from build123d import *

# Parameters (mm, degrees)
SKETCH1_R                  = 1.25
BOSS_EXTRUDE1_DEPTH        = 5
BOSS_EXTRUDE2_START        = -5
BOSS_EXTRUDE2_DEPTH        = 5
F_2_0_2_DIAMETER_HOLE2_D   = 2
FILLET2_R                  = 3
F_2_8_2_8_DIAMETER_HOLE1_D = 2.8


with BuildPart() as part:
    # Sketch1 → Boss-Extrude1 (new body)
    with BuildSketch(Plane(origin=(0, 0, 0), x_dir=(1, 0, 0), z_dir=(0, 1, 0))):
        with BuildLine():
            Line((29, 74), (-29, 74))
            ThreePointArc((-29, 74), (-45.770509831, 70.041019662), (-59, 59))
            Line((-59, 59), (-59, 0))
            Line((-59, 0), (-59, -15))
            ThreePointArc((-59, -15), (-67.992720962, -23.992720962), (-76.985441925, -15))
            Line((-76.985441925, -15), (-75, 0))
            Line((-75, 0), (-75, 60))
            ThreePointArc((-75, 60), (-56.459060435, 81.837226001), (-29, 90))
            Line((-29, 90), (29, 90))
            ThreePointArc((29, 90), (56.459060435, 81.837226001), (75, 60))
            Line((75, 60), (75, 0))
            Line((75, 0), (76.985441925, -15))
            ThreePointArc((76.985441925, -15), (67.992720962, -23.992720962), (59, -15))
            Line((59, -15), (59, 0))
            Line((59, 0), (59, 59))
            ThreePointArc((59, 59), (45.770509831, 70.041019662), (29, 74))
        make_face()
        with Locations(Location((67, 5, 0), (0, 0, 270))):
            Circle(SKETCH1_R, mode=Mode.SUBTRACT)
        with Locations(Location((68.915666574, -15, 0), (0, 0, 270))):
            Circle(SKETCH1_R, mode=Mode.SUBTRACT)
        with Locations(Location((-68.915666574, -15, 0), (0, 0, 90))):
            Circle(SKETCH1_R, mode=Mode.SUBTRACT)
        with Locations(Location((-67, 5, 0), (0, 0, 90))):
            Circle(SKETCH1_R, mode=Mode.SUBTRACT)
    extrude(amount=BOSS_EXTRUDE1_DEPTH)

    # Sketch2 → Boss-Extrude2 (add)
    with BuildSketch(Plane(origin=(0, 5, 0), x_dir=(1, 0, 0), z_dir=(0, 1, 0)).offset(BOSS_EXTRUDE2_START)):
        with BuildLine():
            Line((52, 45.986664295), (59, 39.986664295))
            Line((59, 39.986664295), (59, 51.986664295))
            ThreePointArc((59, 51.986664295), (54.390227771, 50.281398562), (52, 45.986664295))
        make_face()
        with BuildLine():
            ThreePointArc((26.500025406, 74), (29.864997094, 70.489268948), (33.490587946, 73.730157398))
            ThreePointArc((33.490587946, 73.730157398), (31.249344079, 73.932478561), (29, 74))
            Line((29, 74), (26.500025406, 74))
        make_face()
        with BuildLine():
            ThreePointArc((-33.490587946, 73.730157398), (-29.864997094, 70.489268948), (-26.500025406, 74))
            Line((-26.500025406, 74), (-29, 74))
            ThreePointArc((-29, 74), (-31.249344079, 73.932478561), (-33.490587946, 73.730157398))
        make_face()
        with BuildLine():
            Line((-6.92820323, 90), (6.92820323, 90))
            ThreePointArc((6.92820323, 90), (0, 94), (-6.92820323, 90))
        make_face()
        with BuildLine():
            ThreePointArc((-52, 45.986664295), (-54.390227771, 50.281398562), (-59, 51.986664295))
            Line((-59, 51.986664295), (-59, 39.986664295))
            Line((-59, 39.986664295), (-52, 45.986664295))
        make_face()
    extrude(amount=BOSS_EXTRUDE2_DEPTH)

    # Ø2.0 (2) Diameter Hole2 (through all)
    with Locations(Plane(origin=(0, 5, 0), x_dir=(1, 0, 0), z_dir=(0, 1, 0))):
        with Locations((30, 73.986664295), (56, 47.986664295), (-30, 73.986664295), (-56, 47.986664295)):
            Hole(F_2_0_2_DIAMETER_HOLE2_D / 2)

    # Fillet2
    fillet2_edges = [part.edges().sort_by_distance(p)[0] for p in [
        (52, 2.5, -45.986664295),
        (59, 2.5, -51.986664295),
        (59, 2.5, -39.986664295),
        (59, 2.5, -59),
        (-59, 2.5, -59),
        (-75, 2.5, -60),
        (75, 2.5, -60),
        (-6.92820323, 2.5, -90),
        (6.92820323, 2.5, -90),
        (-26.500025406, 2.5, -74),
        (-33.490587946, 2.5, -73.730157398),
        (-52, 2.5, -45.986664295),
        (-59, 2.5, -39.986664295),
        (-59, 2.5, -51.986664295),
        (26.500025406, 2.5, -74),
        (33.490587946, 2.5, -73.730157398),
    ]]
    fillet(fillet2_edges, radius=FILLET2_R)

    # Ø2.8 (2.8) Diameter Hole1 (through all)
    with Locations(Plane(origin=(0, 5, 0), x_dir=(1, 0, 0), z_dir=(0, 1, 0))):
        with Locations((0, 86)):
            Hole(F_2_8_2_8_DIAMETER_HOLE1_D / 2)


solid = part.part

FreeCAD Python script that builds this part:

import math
import FreeCAD as App
import Part
import Sketcher

V = App.Vector
Q = App.Units.Quantity


def edges_at(feature, points):
    """Names of the edges that pass closest to the given points."""
    edges = feature.Shape.Edges
    near = lambda p: min(range(len(edges)), key=lambda i: edges[i].distToShape(Part.Vertex(*p))[0])
    return sorted({f"Edge{near(p) + 1}" for p in points})

doc = App.newDocument("Part")
body = doc.addObject("PartDesign::Body", "Body")

sketch1 = doc.addObject("Sketcher::SketchObject", "Sketch")
body.addObject(sketch1)
sketch1.AttachmentSupport = (doc.XZ_Plane, [""])
sketch1.MapMode = "FlatFace"
sketch1.addGeometry([
    Part.LineSegment(V(-29, -74, 0), V(29, -74, 0)),
    Part.ArcOfCircle(Part.Circle(V(29, -36.5, 0), V(0, 0, 1), 37.5), math.radians(-90), math.radians(-37)),
    Part.LineSegment(V(59, -59, 0), V(59, 15, 0)),
    Part.ArcOfCircle(Part.Circle(V(68, 15, 0), V(0, 0, 1), 9), math.radians(0), math.radians(180)),
    Part.LineSegment(V(77, 15, 0), V(75, 0, 0)),
    Part.LineSegment(V(75, 0, 0), V(75, -60, 0)),
    Part.ArcOfCircle(Part.Circle(V(29, -39.7, 0), V(0, 0, 1), 50.3), math.radians(-90), math.radians(-24)),
    Part.LineSegment(V(29, -90, 0), V(-29, -90, 0)),
    Part.ArcOfCircle(Part.Circle(V(-29, -39.7, 0), V(0, 0, 1), 50.3), math.radians(-156), math.radians(-90)),
    Part.LineSegment(V(-75, -60, 0), V(-75, 0, 0)),
    Part.LineSegment(V(-75, 0, 0), V(-77, 15, 0)),
    Part.ArcOfCircle(Part.Circle(V(-68, 15, 0), V(0, 0, 1), 9), math.radians(0), math.radians(180)),
    Part.LineSegment(V(-59, 15, 0), V(-59, -59, 0)),
    Part.ArcOfCircle(Part.Circle(V(-29, -36.5, 0), V(0, 0, 1), 37.5), math.radians(-143), math.radians(-90)),
    Part.Circle(V(68.9, 15, 0), V(0, 0, 1), 1.2),
    Part.Circle(V(-68.9, 15, 0), V(0, 0, 1), 1.2),
    Part.Circle(V(67, -5, 0), V(0, 0, 1), 1.2),
    Part.Circle(V(-67, -5, 0), V(0, 0, 1), 1.2),
], False)
sketch1.addConstraint([
    Sketcher.Constraint("Tangent", 0, 2, 1, 1),
    Sketcher.Constraint("Coincident", 1, 2, 2, 1),
    Sketcher.Constraint("Tangent", 2, 2, 3, 2),
    Sketcher.Constraint("Coincident", 3, 1, 4, 1),
    Sketcher.Constraint("Coincident", 4, 2, 5, 1),
    Sketcher.Constraint("Coincident", 5, 2, 6, 2),
    Sketcher.Constraint("Tangent", 6, 1, 7, 1),
    Sketcher.Constraint("Tangent", 7, 2, 8, 2),
    Sketcher.Constraint("Coincident", 8, 1, 9, 1),
    Sketcher.Constraint("Coincident", 9, 2, 10, 1),
    Sketcher.Constraint("Coincident", 10, 2, 11, 2),
    Sketcher.Constraint("Tangent", 11, 1, 12, 1),
    Sketcher.Constraint("Coincident", 12, 2, 13, 1),
    Sketcher.Constraint("Tangent", 13, 2, 0, 1),
    Sketcher.Constraint("Horizontal", 0),
    Sketcher.Constraint("Vertical", 2),
    Sketcher.Constraint("Vertical", 5),
    Sketcher.Constraint("Horizontal", 7),
    Sketcher.Constraint("Vertical", 9),
    Sketcher.Constraint("Vertical", 12),
    Sketcher.Constraint("Equal", 6, 8),
    Sketcher.Constraint("Equal", 3, 11),
    Sketcher.Constraint("Equal", 1, 13),
    Sketcher.Constraint("Equal", 14, 15),
    Sketcher.Constraint("Equal", 15, 16),
    Sketcher.Constraint("Equal", 16, 17),
    Sketcher.Constraint("Symmetric", 4, 2, 9, 2, -1, 1),
    Sketcher.Constraint("Symmetric", 3, 3, 11, 3, -2),
    Sketcher.Constraint("Symmetric", 14, 3, 15, 3, -2),
    Sketcher.Constraint("Symmetric", 16, 3, 17, 3, -2),
    Sketcher.Constraint("PointOnObject", 4, 2, -1),
    Sketcher.Constraint("Horizontal", 11, 3, 14, 3),
    Sketcher.Constraint("Horizontal", 2, 2, 3, 1),
    Sketcher.Constraint("Horizontal", 5, 2, 8, 1),
    Sketcher.Constraint("Horizontal", 3, 1, 10, 2),
    Sketcher.Constraint("Horizontal", 1, 2, 12, 2),
    Sketcher.Constraint("Vertical", 1, 3, 6, 3),
    Sketcher.Constraint("Diameter", 14, Q("2.5 mm")),
    Sketcher.Constraint("Radius", 1, Q("37.5 mm")),
    Sketcher.Constraint("DistanceX", 0, 1, 0, 2, Q("58 mm")),
    Sketcher.Constraint("DistanceY", 2, 1, 2, 2, Q("74 mm")),
    Sketcher.Constraint("DistanceY", 5, 2, 5, 1, Q("60 mm")),
    Sketcher.Constraint("DistanceY", -1, 1, 3, 3, Q("15 mm")),
    Sketcher.Constraint("DistanceX", -1, 1, 16, 3, Q("67 mm")),
    Sketcher.Constraint("DistanceY", 16, 3, -1, 1, Q("5 mm")),
    Sketcher.Constraint("DistanceY", 0, 2, -1, 1, Q("74 mm")),
    Sketcher.Constraint("DistanceX", -1, 1, 4, 2, Q("75 mm")),
    Sketcher.Constraint("DistanceY", 6, 1, -1, 1, Q("90 mm")),
    Sketcher.Constraint("Angle", 4, Q("-97.54 deg")),
    Sketcher.Constraint("DistanceX", -1, 1, 14, 3, Q("68.915667 mm")),
])
pad1 = doc.addObject("PartDesign::Pad", "Pad")
body.addObject(pad1)
pad1.Profile = sketch1
pad1.Length = 5
pad1.Reversed = True

sketch2 = doc.addObject("Sketcher::SketchObject", "Sketch001")
body.addObject(sketch2)
sketch2.AttachmentSupport = (doc.XZ_Plane, [""])
sketch2.MapMode = "FlatFace"
sketch2.addGeometry([
    Part.LineSegment(V(52, -46, 0), V(59, -40, 0)),
    Part.LineSegment(V(59, -40, 0), V(59, -52, 0)),
    Part.ArcOfCircle(Part.Circle(V(59, -44.9, 0), V(0, 0, 1), 7.1), math.radians(-171), math.radians(-90)),
    Part.ArcOfCircle(Part.Circle(V(30, -74, 0), V(0, 0, 1), 3.5), math.radians(4), math.radians(180)),
    Part.ArcOfCircle(Part.Circle(V(29, -36.5, 0), V(0, 0, 1), 37.5), math.radians(-90), math.radians(-83.12)),
    Part.LineSegment(V(29, -74, 0), V(26.5, -74, 0)),
    Part.ArcOfCircle(Part.Circle(V(-30, -74, 0), V(0, 0, 1), 3.5), math.radians(0), math.radians(176)),
    Part.LineSegment(V(-26.5, -74, 0), V(-29, -74, 0)),
    Part.ArcOfCircle(Part.Circle(V(-29, -36.5, 0), V(0, 0, 1), 37.5), math.radians(-96.88), math.radians(-90)),
    Part.LineSegment(V(-6.9, -90, 0), V(6.9, -90, 0)),
    Part.ArcOfCircle(Part.Circle(V(0, -86, 0), V(0, 0, 1), 8), math.radians(-150), math.radians(-30)),
    Part.ArcOfCircle(Part.Circle(V(-59, -44.9, 0), V(0, 0, 1), 7.1), math.radians(-90), math.radians(-9)),
    Part.LineSegment(V(-59, -52, 0), V(-59, -40, 0)),
    Part.LineSegment(V(-59, -40, 0), V(-52, -46, 0)),
], False)
sketch2.addConstraint([
    Sketcher.Constraint("Coincident", 0, 2, 1, 1),
    Sketcher.Constraint("Coincident", 1, 2, 2, 2),
    Sketcher.Constraint("Coincident", 2, 1, 0, 1),
    Sketcher.Constraint("Coincident", 3, 1, 4, 2),
    Sketcher.Constraint("Tangent", 4, 1, 5, 1),
    Sketcher.Constraint("Coincident", 5, 2, 3, 2),
    Sketcher.Constraint("Coincident", 6, 1, 7, 1),
    Sketcher.Constraint("Tangent", 7, 2, 8, 2),
    Sketcher.Constraint("Coincident", 8, 1, 6, 2),
    Sketcher.Constraint("Coincident", 9, 1, 10, 1),
    Sketcher.Constraint("Coincident", 10, 2, 9, 2),
    Sketcher.Constraint("Coincident", 11, 1, 12, 1),
    Sketcher.Constraint("Coincident", 12, 2, 13, 1),
    Sketcher.Constraint("Coincident", 13, 2, 11, 2),
    Sketcher.Constraint("Vertical", 1),
    Sketcher.Constraint("Horizontal", 5),
    Sketcher.Constraint("Horizontal", 7),
    Sketcher.Constraint("Horizontal", 9),
    Sketcher.Constraint("Vertical", 12),
    Sketcher.Constraint("Equal", 3, 6),
    Sketcher.Constraint("Equal", 4, 8),
    Sketcher.Constraint("Equal", 2, 11),
    Sketcher.Constraint("Symmetric", 3, 3, 6, 3, -2),
    Sketcher.Constraint("Symmetric", 4, 3, 8, 3, -2),
    Sketcher.Constraint("Symmetric", 2, 3, 11, 3, -2),
    Sketcher.Constraint("Symmetric", 0, 2, 12, 2, -2),
    Sketcher.Constraint("PointOnObject", 10, 3, -2),
    Sketcher.Constraint("Horizontal", 2, 1, 13, 2),
    Sketcher.Constraint("Vertical", 2, 3, 0, 2),
    Sketcher.Constraint("Radius", 10, Q("8 mm")),
    Sketcher.Constraint("Radius", 3, Q("3.5 mm")),
    Sketcher.Constraint("Radius", 4, Q("37.5 mm")),
    Sketcher.Constraint("DistanceY", 1, 2, 1, 1, Q("12 mm")),
    Sketcher.Constraint("DistanceX", -1, 1, 2, 3, Q("59 mm")),
    Sketcher.Constraint("DistanceX", -1, 1, 3, 3, Q("30 mm")),
    Sketcher.Constraint("DistanceX", -1, 1, 4, 3, Q("29 mm")),
    Sketcher.Constraint("DistanceY", 10, 3, -1, 1, Q("86 mm")),
    Sketcher.Constraint("DistanceX", -1, 1, 2, 1, Q("52 mm")),
    Sketcher.Constraint("DistanceY", 4, 1, -1, 1, Q("74 mm")),
    Sketcher.Constraint("DistanceY", 9, 1, -1, 1, Q("90 mm")),
    Sketcher.Constraint("DistanceY", 3, 3, 0, 2, Q("34 mm")),
    Sketcher.Constraint("DistanceY", 2, 1, 0, 2, Q("6 mm")),
    Sketcher.Constraint("DistanceY", 2, 3, -1, 1, Q("44.903331 mm")),
])
pad2 = doc.addObject("PartDesign::Pad", "Pad001")
body.addObject(pad2)
pad2.Profile = sketch2
pad2.Length = 5
pad2.Reversed = True

sketch3 = doc.addObject("Sketcher::SketchObject", "Sketch002")
body.addObject(sketch3)
sketch3.AttachmentSupport = (doc.XZ_Plane, [""])
sketch3.MapMode = "FlatFace"
sketch3.AttachmentOffset = App.Placement(V(0, 0, -5), App.Rotation())
sketch3.addGeometry([
    Part.Circle(V(30, -74, 0), V(0, 0, 1), 1),
    Part.Circle(V(56, -48, 0), V(0, 0, 1), 1),
    Part.Circle(V(-30, -74, 0), V(0, 0, 1), 1),
    Part.Circle(V(-56, -48, 0), V(0, 0, 1), 1),
], False)
sketch3.addConstraint([
    Sketcher.Constraint("Equal", 0, 1),
    Sketcher.Constraint("Equal", 1, 2),
    Sketcher.Constraint("Equal", 2, 3),
    Sketcher.Constraint("Symmetric", 0, 3, 2, 3, -2),
    Sketcher.Constraint("Symmetric", 1, 3, 3, 3, -2),
    Sketcher.Constraint("Diameter", 0, Q("2 mm")),
    Sketcher.Constraint("DistanceX", -1, 1, 0, 3, Q("30 mm")),
    Sketcher.Constraint("DistanceX", -1, 1, 1, 3, Q("56 mm")),
    Sketcher.Constraint("DistanceY", 0, 3, 1, 3, Q("26 mm")),
    Sketcher.Constraint("DistanceY", 0, 3, -1, 1, Q("73.986664 mm")),
])
doc.recompute()
hole = doc.addObject("PartDesign::Hole", "Hole")
body.addObject(hole)
hole.Profile = sketch3
hole.ThreadType = "None"
hole.Diameter = 2
hole.DepthType = "ThroughAll"
hole.Reversed = True
doc.recompute()

fillet = doc.addObject("PartDesign::Fillet", "Fillet")
body.addObject(fillet)
fillet.Base = (hole, edges_at(hole, [
    (52, 2.5, -45.987),
    (59, 2.5, -51.987),
    (59, 2.5, -39.987),
    (59, 2.5, -59),
    (-59, 2.5, -59),
    (-75, 2.5, -60),
    (75, 2.5, -60),
    (-6.928, 2.5, -90),
    (6.928, 2.5, -90),
    (-26.5, 2.5, -74),
    (-33.491, 2.5, -73.73),
    (-52, 2.5, -45.987),
    (-59, 2.5, -39.987),
    (-59, 2.5, -51.987),
    (26.5, 2.5, -74),
    (33.491, 2.5, -73.73),
]))
fillet.Radius = 3

sketch4 = doc.addObject("Sketcher::SketchObject", "Sketch003")
body.addObject(sketch4)
sketch4.AttachmentSupport = (doc.XZ_Plane, [""])
sketch4.MapMode = "FlatFace"
sketch4.AttachmentOffset = App.Placement(V(0, 0, -5), App.Rotation())
sketch4.addGeometry(Part.Circle(V(0, -86, 0), V(0, 0, 1), 1.4), False)
sketch4.addConstraint([
    Sketcher.Constraint("PointOnObject", 0, 3, -2),
    Sketcher.Constraint("Diameter", 0, Q("2.8 mm")),
    Sketcher.Constraint("DistanceY", 0, 3, -1, 1, Q("86 mm")),
])
doc.recompute()
hole2 = doc.addObject("PartDesign::Hole", "Hole001")
body.addObject(hole2)
hole2.Profile = sketch4
hole2.ThreadType = "None"
hole2.Diameter = 2.8
hole2.DepthType = "ThroughAll"
hole2.Reversed = True

doc.recompute()
